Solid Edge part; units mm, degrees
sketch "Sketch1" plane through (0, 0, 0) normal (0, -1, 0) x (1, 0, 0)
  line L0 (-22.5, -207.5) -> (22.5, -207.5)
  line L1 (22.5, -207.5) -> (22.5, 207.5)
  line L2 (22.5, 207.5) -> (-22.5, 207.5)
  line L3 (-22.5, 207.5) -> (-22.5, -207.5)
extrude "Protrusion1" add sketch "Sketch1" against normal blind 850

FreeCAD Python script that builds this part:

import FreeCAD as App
import Part
import Sketcher
from FreeCAD import Vector
Q = App.Units.Quantity


def add_polygon(sketch, points):
    """Adds a closed chain of lines whose ends are joined by coincident constraints."""
    first, n = sketch.GeometryCount, len(points)
    for a, b in zip(points, points[1:] + points[:1]):
        sketch.addGeometry(Part.LineSegment(App.Vector(*a, 0), App.Vector(*b, 0)), False)
    for i in range(n):
        sketch.addConstraint(Sketcher.Constraint("Coincident", first + i, 2, first + (i + 1) % n, 1))

doc = App.newDocument("Part")
body = doc.addObject("PartDesign::Body", "Body")

sketch1 = body.newObject("Sketcher::SketchObject", "Sketch")
sketch1.AttachmentSupport = (doc.getObject("XZ_Plane"), [""])
sketch1.MapMode = "FlatFace"
add_polygon(sketch1, [(-22, 208), (-22, -208), (22, -208), (22, 208)])
sketch1.addConstraint([
    Sketcher.Constraint("Vertical", 0),
    Sketcher.Constraint("Horizontal", 1),
    Sketcher.Constraint("Vertical", 2),
    Sketcher.Constraint("Horizontal", 3),
    Sketcher.Constraint("Symmetric", 0, 2, 2, 2, -1, 1),
    Sketcher.Constraint("DistanceX", 1, 1, 1, 2, Q("45 mm")),
    Sketcher.Constraint("DistanceY", 0, 2, 0, 1, Q("415 mm")),
])
pad1 = body.newObject("PartDesign::Pad", "Pad")
pad1.Profile = sketch1
pad1.Length = 850
pad1.Reversed = True

doc.recompute()
